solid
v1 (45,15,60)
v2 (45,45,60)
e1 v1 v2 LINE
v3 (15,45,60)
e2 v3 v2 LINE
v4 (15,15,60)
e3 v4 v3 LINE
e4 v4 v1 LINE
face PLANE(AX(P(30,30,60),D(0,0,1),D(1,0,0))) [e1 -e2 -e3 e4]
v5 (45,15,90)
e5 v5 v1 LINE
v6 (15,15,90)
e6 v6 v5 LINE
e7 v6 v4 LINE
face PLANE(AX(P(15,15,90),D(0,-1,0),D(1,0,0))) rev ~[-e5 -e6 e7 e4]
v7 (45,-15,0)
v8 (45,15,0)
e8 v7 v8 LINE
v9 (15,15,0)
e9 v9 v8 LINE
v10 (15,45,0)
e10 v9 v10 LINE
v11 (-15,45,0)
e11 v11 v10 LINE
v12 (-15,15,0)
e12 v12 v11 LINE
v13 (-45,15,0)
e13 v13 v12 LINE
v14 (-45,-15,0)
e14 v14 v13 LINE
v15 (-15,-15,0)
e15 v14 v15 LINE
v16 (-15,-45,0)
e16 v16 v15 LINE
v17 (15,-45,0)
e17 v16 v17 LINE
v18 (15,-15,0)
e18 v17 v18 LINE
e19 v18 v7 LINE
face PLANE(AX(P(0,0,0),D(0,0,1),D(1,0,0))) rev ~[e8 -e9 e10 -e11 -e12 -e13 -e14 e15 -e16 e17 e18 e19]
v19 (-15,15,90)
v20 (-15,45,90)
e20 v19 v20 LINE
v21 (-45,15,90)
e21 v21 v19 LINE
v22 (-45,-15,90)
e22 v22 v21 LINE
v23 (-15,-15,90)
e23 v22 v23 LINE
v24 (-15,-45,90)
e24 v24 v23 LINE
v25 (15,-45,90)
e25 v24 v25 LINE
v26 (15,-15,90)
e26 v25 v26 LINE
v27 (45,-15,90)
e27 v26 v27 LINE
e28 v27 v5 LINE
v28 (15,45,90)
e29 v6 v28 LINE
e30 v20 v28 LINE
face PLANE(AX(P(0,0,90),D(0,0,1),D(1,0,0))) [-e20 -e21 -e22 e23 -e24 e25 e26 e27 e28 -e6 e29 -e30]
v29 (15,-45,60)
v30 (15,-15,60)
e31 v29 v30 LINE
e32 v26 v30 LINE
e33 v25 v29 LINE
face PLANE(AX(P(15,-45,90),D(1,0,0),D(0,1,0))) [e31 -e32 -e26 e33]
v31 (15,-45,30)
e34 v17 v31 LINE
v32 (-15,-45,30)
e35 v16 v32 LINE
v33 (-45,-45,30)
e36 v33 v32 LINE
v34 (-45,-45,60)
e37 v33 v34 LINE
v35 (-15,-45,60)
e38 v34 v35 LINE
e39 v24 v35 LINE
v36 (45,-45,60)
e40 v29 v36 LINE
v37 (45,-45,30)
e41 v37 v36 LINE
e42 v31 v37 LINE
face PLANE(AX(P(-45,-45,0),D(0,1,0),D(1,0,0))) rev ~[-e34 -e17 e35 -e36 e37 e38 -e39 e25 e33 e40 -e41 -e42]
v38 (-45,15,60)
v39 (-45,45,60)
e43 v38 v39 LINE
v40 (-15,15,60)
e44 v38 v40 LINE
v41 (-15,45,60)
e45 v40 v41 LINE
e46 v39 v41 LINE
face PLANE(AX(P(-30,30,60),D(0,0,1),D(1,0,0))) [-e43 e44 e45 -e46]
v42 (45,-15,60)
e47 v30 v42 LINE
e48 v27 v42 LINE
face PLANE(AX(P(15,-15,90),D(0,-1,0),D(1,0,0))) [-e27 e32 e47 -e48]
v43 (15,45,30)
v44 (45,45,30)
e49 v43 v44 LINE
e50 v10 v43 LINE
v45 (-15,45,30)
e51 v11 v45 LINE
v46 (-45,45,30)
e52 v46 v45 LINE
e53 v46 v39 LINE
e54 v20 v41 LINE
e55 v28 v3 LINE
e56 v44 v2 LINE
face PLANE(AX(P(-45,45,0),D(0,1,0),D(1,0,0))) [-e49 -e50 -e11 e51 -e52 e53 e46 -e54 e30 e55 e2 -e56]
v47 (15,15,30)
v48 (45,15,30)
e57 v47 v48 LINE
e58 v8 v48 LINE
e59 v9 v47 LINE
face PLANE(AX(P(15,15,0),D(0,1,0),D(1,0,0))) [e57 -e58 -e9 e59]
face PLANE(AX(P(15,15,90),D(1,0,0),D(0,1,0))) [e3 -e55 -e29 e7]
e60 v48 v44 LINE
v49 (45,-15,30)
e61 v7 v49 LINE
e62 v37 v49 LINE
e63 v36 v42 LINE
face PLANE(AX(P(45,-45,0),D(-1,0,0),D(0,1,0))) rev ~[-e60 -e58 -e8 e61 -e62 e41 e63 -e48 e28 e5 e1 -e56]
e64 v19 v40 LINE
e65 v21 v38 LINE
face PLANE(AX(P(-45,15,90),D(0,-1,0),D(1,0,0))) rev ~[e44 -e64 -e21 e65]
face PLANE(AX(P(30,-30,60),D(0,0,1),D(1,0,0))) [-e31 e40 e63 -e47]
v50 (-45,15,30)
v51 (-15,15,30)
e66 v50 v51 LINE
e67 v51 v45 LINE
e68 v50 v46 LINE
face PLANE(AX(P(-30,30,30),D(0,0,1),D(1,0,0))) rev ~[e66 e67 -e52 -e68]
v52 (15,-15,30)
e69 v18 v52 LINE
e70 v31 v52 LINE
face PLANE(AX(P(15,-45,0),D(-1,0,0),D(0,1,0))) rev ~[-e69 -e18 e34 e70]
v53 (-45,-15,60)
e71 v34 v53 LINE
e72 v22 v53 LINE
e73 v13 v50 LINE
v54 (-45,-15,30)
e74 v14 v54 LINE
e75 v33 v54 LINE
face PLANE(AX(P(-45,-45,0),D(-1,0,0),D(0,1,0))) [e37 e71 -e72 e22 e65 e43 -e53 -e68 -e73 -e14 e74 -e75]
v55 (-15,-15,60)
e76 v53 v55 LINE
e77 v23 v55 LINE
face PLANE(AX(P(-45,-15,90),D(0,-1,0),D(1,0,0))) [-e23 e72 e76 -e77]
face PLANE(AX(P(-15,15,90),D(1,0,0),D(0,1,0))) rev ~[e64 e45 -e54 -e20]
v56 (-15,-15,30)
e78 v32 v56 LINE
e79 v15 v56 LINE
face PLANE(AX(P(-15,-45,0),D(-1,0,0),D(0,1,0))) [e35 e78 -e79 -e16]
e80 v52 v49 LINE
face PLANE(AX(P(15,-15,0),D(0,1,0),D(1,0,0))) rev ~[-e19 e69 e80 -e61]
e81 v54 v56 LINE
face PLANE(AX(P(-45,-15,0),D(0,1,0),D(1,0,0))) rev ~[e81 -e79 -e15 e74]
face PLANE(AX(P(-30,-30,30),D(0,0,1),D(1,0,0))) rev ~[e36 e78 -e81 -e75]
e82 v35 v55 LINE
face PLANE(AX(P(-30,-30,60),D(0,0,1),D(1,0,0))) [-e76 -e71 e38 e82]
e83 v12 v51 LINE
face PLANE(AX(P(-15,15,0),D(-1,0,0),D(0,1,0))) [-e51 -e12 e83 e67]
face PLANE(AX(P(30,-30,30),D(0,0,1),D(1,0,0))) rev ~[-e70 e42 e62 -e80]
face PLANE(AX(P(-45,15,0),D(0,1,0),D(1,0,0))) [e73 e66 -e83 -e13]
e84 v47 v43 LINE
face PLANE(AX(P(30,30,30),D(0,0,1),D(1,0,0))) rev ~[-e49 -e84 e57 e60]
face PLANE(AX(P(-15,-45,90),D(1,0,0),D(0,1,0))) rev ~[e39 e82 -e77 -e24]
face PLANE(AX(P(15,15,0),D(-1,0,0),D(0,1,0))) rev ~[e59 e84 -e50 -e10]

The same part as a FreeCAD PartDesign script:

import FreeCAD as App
import Part
import Sketcher

doc = App.newDocument("Part")
body = doc.addObject("PartDesign::Body", "Body")

# Sketch on XY plane
sketch1 = body.newObject("Sketcher::SketchObject", "Sketch")
sketch1.AttachmentSupport = (doc.getObject("XY_Plane"), [""])
sketch1.MapMode = "FlatFace"
sketch1.addGeometry([
    Part.LineSegment(App.Vector(-45, 45, 0), App.Vector(-45, -45, 0)),
    Part.LineSegment(App.Vector(-45, -45, 0), App.Vector(45, -45, 0)),
    Part.LineSegment(App.Vector(45, -45, 0), App.Vector(45, 45, 0)),
    Part.LineSegment(App.Vector(45, 45, 0), App.Vector(-45, 45, 0)),
], False)
sketch1.addConstraint([
    Sketcher.Constraint("Coincident", 0, 2, 1, 1),
    Sketcher.Constraint("Coincident", 1, 2, 2, 1),
    Sketcher.Constraint("Coincident", 2, 2, 3, 1),
    Sketcher.Constraint("Coincident", 3, 2, 0, 1),
    Sketcher.Constraint("Vertical", 0),
    Sketcher.Constraint("Horizontal", 1),
    Sketcher.Constraint("Vertical", 2),
    Sketcher.Constraint("Horizontal", 3),
    Sketcher.Constraint("Symmetric", 0, 2, 2, 2, -1, 1),
    Sketcher.Constraint("Equal", 3, 0),
    Sketcher.Constraint("DistanceX", 1, 1, 1, 2, 90.0),
])
pad1 = body.newObject("PartDesign::Pad", "Pad")
pad1.Profile = sketch1
pad1.Length = 90

# Sketch on XY plane
sketch2 = body.newObject("Sketcher::SketchObject", "Sketch001")
sketch2.AttachmentSupport = (doc.getObject("XY_Plane"), [""])
sketch2.MapMode = "FlatFace"
sketch2.AttachmentOffset = App.Placement(App.Vector(0, 0, 90), App.Rotation())
sketch2.addGeometry([
    Part.LineSegment(App.Vector(-45, -15, 0), App.Vector(-45, -45, 0)),  # 0
    Part.LineSegment(App.Vector(-45, -45, 0), App.Vector(-15, -45, 0)),  # 1
    Part.LineSegment(App.Vector(-15, -45, 0), App.Vector(-15, -15, 0)),  # 2
    Part.LineSegment(App.Vector(-15, -15, 0), App.Vector(-45, -15, 0)),  # 3
    Part.LineSegment(App.Vector(-45, 45, 0), App.Vector(-45, 15, 0)),  # 4
    Part.LineSegment(App.Vector(-45, 15, 0), App.Vector(-15, 15, 0)),  # 5
    Part.LineSegment(App.Vector(-15, 15, 0), App.Vector(-15, 45, 0)),  # 6
    Part.LineSegment(App.Vector(-15, 45, 0), App.Vector(-45, 45, 0)),  # 7
    Part.LineSegment(App.Vector(15, 45, 0), App.Vector(15, 15, 0)),  # 8
    Part.LineSegment(App.Vector(15, 15, 0), App.Vector(45, 15, 0)),  # 9
    Part.LineSegment(App.Vector(45, 15, 0), App.Vector(45, 45, 0)),  # 10
    Part.LineSegment(App.Vector(45, 45, 0), App.Vector(15, 45, 0)),  # 11
    Part.LineSegment(App.Vector(15, -15, 0), App.Vector(15, -45, 0)),  # 12
    Part.LineSegment(App.Vector(15, -45, 0), App.Vector(45, -45, 0)),  # 13
    Part.LineSegment(App.Vector(45, -45, 0), App.Vector(45, -15, 0)),  # 14
    Part.LineSegment(App.Vector(45, -15, 0), App.Vector(15, -15, 0)),  # 15
], False)
sketch2.addConstraint([
    Sketcher.Constraint("Coincident", 0, 2, 1, 1),
    Sketcher.Constraint("Coincident", 1, 2, 2, 1),
    Sketcher.Constraint("Coincident", 2, 2, 3, 1),
    Sketcher.Constraint("Coincident", 3, 2, 0, 1),
    Sketcher.Constraint("Coincident", 4, 2, 5, 1),
    Sketcher.Constraint("Coincident", 5, 2, 6, 1),
    Sketcher.Constraint("Coincident", 6, 2, 7, 1),
    Sketcher.Constraint("Coincident", 7, 2, 4, 1),
    Sketcher.Constraint("Coincident", 8, 2, 9, 1),
    Sketcher.Constraint("Coincident", 9, 2, 10, 1),
    Sketcher.Constraint("Coincident", 10, 2, 11, 1),
    Sketcher.Constraint("Coincident", 11, 2, 8, 1),
    Sketcher.Constraint("Coincident", 12, 2, 13, 1),
    Sketcher.Constraint("Coincident", 13, 2, 14, 1),
    Sketcher.Constraint("Coincident", 14, 2, 15, 1),
    Sketcher.Constraint("Coincident", 15, 2, 12, 1),
    Sketcher.Constraint("Vertical", 0),
    Sketcher.Constraint("Horizontal", 1),
    Sketcher.Constraint("Vertical", 2),
    Sketcher.Constraint("Horizontal", 3),
    Sketcher.Constraint("Vertical", 4),
    Sketcher.Constraint("Horizontal", 5),
    Sketcher.Constraint("Vertical", 6),
    Sketcher.Constraint("Horizontal", 7),
    Sketcher.Constraint("Vertical", 8),
    Sketcher.Constraint("Horizontal", 9),
    Sketcher.Constraint("Vertical", 10),
    Sketcher.Constraint("Horizontal", 11),
    Sketcher.Constraint("Vertical", 12),
    Sketcher.Constraint("Horizontal", 13),
    Sketcher.Constraint("Vertical", 14),
    Sketcher.Constraint("Horizontal", 15),
    Sketcher.Constraint("Symmetric", 2, 2, 8, 2, -1, 1),
    Sketcher.Constraint("Symmetric", 0, 2, 10, 2, -1, 1),
    Sketcher.Constraint("Symmetric", 6, 2, 12, 2, -1, 1),
    Sketcher.Constraint("Symmetric", 4, 2, 14, 2, -1, 1),
    Sketcher.Constraint("Symmetric", 5, 2, 8, 2, -2),
    Sketcher.Constraint("Symmetric", 7, 2, 10, 2, -2),
    Sketcher.Constraint("Equal", 15, 0),
    Sketcher.Constraint("DistanceX", 1, 1, 1, 2, 30.0),
    Sketcher.Constraint("DistanceX", 0, 2, -1, 1, 45.0),
    Sketcher.Constraint("DistanceY", 0, 2, -1, 1, 45.0),
])
pocket1 = body.newObject("PartDesign::Pocket", "Pocket")
pocket1.Profile = sketch2
pocket1.Length = 30

# Sketch on XY plane
sketch3 = body.newObject("Sketcher::SketchObject", "Sketch002")
sketch3.AttachmentSupport = (doc.getObject("XY_Plane"), [""])
sketch3.MapMode = "FlatFace"
sketch3.addGeometry([
    Part.LineSegment(App.Vector(15, 45, 0), App.Vector(15, 15, 0)),  # 0
    Part.LineSegment(App.Vector(15, 15, 0), App.Vector(45, 15, 0)),  # 1
    Part.LineSegment(App.Vector(45, 15, 0), App.Vector(45, 45, 0)),  # 2
    Part.LineSegment(App.Vector(45, 45, 0), App.Vector(15, 45, 0)),  # 3
    Part.LineSegment(App.Vector(-45, 45, 0), App.Vector(-45, 15, 0)),  # 4
    Part.LineSegment(App.Vector(-45, 15, 0), App.Vector(-15, 15, 0)),  # 5
    Part.LineSegment(App.Vector(-15, 15, 0), App.Vector(-15, 45, 0)),  # 6
    Part.LineSegment(App.Vector(-15, 45, 0), App.Vector(-45, 45, 0)),  # 7
    Part.LineSegment(App.Vector(-45, -15, 0), App.Vector(-45, -45, 0)),  # 8
    Part.LineSegment(App.Vector(-45, -45, 0), App.Vector(-15, -45, 0)),  # 9
    Part.LineSegment(App.Vector(-15, -45, 0), App.Vector(-15, -15, 0)),  # 10
    Part.LineSegment(App.Vector(-15, -15, 0), App.Vector(-45, -15, 0)),  # 11
    Part.LineSegment(App.Vector(15, -15, 0), App.Vector(15, -45, 0)),  # 12
    Part.LineSegment(App.Vector(15, -45, 0), App.Vector(45, -45, 0)),  # 13
    Part.LineSegment(App.Vector(45, -45, 0), App.Vector(45, -15, 0)),  # 14
    Part.LineSegment(App.Vector(45, -15, 0), App.Vector(15, -15, 0)),  # 15
], False)
sketch3.addConstraint([
    Sketcher.Constraint("Coincident", 0, 2, 1, 1),
    Sketcher.Constraint("Coincident", 1, 2, 2, 1),
    Sketcher.Constraint("Coincident", 2, 2, 3, 1),
    Sketcher.Constraint("Coincident", 3, 2, 0, 1),
    Sketcher.Constraint("Coincident", 4, 2, 5, 1),
    Sketcher.Constraint("Coincident", 5, 2, 6, 1),
    Sketcher.Constraint("Coincident", 6, 2, 7, 1),
    Sketcher.Constraint("Coincident", 7, 2, 4, 1),
    Sketcher.Constraint("Coincident", 8, 2, 9, 1),
    Sketcher.Constraint("Coincident", 9, 2, 10, 1),
    Sketcher.Constraint("Coincident", 10, 2, 11, 1),
    Sketcher.Constraint("Coincident", 11, 2, 8, 1),
    Sketcher.Constraint("Coincident", 12, 2, 13, 1),
    Sketcher.Constraint("Coincident", 13, 2, 14, 1),
    Sketcher.Constraint("Coincident", 14, 2, 15, 1),
    Sketcher.Constraint("Coincident", 15, 2, 12, 1),
    Sketcher.Constraint("Vertical", 0),
    Sketcher.Constraint("Horizontal", 1),
    Sketcher.Constraint("Vertical", 2),
    Sketcher.Constraint("Horizontal", 3),
    Sketcher.Constraint("Vertical", 4),
    Sketcher.Constraint("Horizontal", 5),
    Sketcher.Constraint("Vertical", 6),
    Sketcher.Constraint("Horizontal", 7),
    Sketcher.Constraint("Vertical", 8),
    Sketcher.Constraint("Horizontal", 9),
    Sketcher.Constraint("Vertical", 10),
    Sketcher.Constraint("Horizontal", 11),
    Sketcher.Constraint("Vertical", 12),
    Sketcher.Constraint("Horizontal", 13),
    Sketcher.Constraint("Vertical", 14),
    Sketcher.Constraint("Horizontal", 15),
    Sketcher.Constraint("Symmetric", 2, 2, 8, 2, -1, 1),
    Sketcher.Constraint("Symmetric", 0, 2, 10, 2, -1, 1),
    Sketcher.Constraint("Symmetric", 6, 2, 12, 2, -1, 1),
    Sketcher.Constraint("Symmetric", 4, 2, 14, 2, -1, 1),
    Sketcher.Constraint("Symmetric", 1, 2, 4, 2, -2),
    Sketcher.Constraint("Symmetric", 3, 2, 6, 2, -2),
    Sketcher.Constraint("Equal", 15, 0),
    Sketcher.Constraint("DistanceX", 1, 1, 1, 2, 30.0),
    Sketcher.Constraint("DistanceX", -1, 1, 0, 2, 15.0),
    Sketcher.Constraint("DistanceY", -1, 1, 0, 2, 15.0),
])
pocket2 = body.newObject("PartDesign::Pocket", "Pocket001")
pocket2.Profile = sketch3
pocket2.Length = 30
pocket2.Reversed = True

doc.recompute()
